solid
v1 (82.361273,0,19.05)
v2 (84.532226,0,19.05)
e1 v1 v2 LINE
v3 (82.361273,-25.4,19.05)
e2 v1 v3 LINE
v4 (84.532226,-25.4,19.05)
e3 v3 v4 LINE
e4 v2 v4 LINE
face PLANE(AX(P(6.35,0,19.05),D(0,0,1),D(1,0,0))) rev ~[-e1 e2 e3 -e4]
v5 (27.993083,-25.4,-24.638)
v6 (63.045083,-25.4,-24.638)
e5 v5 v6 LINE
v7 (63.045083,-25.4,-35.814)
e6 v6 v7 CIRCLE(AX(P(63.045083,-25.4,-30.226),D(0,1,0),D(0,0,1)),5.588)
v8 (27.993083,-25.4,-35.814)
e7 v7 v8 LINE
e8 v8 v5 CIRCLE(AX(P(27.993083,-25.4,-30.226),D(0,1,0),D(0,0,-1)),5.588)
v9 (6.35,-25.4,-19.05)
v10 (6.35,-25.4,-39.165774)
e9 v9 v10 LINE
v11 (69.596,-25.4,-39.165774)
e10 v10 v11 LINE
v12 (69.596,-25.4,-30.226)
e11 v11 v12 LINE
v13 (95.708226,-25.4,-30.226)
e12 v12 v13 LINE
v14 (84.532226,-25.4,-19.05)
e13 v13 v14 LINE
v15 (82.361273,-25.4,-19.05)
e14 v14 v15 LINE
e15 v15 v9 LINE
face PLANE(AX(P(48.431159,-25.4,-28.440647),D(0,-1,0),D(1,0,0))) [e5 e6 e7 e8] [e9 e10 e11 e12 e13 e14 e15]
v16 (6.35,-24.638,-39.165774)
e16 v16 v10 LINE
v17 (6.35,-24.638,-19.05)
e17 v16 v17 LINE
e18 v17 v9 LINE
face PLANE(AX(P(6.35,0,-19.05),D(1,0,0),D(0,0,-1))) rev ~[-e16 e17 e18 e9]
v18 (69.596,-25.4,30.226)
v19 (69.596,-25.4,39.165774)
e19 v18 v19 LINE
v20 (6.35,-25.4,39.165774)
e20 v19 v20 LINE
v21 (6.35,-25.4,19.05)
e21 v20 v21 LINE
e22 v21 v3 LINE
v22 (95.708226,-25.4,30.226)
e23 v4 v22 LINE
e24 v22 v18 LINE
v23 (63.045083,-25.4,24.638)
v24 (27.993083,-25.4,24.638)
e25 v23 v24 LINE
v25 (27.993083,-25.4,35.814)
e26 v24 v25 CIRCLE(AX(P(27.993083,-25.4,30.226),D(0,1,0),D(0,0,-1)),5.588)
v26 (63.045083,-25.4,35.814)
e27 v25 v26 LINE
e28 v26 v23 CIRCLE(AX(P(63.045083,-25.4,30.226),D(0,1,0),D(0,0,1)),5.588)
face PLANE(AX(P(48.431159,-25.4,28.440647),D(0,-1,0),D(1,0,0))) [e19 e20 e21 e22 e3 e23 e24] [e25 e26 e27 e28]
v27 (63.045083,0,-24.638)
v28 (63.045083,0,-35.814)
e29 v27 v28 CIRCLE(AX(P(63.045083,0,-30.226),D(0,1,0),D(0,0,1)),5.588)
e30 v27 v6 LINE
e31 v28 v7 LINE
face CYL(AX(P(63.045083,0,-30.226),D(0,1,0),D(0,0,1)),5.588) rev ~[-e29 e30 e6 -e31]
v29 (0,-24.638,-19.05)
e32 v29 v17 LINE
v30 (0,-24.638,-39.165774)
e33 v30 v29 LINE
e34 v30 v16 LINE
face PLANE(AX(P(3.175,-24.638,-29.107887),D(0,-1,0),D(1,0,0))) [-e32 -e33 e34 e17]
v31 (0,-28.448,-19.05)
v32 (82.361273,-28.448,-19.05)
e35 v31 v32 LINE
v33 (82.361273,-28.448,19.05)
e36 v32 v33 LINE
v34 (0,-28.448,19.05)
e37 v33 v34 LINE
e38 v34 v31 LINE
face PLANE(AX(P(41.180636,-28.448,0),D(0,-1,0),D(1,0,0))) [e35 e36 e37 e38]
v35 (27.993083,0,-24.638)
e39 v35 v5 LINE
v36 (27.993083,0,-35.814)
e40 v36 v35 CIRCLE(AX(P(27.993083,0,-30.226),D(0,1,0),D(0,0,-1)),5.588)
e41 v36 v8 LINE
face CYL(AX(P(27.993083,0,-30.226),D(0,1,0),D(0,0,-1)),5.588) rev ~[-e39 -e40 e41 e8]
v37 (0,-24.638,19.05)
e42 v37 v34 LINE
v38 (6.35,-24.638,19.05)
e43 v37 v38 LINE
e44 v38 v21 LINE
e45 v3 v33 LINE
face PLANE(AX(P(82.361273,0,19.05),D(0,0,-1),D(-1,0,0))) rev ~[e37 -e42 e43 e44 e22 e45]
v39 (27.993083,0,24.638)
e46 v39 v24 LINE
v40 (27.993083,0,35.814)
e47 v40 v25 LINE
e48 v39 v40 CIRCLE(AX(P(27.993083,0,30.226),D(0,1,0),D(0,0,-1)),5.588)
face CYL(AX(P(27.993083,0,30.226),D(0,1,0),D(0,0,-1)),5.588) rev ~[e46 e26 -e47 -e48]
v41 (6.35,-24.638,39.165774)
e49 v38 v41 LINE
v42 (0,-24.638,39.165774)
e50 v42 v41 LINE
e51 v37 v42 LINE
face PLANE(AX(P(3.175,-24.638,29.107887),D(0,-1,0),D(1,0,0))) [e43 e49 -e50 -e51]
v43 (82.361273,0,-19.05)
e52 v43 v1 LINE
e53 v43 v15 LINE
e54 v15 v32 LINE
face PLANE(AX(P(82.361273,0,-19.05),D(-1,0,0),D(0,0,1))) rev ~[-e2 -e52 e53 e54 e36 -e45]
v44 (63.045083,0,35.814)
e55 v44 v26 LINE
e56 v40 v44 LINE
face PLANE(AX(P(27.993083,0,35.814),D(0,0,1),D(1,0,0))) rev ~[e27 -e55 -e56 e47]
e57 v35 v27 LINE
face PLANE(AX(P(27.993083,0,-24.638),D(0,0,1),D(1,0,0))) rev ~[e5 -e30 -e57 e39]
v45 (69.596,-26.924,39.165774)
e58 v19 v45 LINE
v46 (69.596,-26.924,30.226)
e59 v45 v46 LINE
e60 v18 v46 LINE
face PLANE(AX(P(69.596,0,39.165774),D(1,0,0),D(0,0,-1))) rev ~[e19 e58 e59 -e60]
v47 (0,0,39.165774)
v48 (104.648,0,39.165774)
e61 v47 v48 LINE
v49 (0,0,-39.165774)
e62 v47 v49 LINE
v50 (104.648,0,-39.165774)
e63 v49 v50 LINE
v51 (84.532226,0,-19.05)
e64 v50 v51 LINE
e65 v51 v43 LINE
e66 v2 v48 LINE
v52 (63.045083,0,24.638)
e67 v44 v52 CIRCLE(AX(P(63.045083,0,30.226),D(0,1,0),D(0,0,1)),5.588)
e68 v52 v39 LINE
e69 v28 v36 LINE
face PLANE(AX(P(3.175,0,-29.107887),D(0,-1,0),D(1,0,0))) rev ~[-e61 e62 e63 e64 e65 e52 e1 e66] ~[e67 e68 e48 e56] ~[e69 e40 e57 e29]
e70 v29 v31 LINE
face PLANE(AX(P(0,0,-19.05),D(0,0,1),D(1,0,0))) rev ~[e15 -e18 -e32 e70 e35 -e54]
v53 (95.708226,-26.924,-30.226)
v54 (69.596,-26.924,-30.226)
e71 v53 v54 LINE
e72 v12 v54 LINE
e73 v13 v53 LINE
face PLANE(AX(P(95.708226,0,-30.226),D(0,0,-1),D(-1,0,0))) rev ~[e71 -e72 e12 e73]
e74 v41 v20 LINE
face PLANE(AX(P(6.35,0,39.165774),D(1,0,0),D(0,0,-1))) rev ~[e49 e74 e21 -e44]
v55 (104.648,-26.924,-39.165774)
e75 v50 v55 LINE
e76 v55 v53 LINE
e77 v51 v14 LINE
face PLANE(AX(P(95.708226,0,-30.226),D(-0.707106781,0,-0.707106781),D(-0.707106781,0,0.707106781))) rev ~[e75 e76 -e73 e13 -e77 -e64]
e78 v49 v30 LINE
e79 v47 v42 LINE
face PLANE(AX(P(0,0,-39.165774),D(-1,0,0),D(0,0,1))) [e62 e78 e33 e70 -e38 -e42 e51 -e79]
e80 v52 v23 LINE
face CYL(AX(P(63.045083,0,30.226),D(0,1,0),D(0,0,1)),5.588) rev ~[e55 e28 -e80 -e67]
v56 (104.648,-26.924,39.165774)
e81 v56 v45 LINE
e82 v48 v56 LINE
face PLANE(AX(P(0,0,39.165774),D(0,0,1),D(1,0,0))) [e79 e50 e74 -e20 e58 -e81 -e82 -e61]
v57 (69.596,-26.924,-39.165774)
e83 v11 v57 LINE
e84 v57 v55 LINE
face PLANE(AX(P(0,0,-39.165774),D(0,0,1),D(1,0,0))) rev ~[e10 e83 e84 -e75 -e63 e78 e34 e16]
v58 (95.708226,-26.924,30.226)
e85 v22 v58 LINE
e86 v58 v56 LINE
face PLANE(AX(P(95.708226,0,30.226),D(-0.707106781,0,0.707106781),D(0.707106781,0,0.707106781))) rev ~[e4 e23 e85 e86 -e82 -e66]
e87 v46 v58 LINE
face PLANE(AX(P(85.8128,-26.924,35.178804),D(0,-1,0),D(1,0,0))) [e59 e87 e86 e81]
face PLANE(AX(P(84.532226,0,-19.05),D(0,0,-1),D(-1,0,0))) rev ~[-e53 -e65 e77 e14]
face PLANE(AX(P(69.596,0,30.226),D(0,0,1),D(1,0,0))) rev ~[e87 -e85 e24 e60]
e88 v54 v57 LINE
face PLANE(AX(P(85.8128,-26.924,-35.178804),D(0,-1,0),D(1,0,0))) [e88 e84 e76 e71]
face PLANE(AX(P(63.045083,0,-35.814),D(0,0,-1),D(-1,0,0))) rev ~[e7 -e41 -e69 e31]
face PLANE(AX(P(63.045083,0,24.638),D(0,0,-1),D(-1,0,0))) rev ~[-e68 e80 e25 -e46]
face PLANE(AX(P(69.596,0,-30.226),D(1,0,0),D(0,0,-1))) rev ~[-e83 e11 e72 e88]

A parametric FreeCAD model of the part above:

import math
import FreeCAD as App
import Part
import Sketcher

V = App.Vector
Q = App.Units.Quantity


def add_polygon(sketch, points):
    """Adds a closed chain of lines whose ends are joined by coincident constraints."""
    first, n = sketch.GeometryCount, len(points)
    for a, b in zip(points, points[1:] + points[:1]):
        sketch.addGeometry(Part.LineSegment(App.Vector(*a, 0), App.Vector(*b, 0)), False)
    for i in range(n):
        sketch.addConstraint(Sketcher.Constraint("Coincident", first + i, 2, first + (i + 1) % n, 1))

doc = App.newDocument("Part")
params = doc.addObject("Spreadsheet::Sheet", "Params")
for row, (alias, value) in enumerate([
    ("sketch1_height", "1.5 in"),
    ("pad1_length", "1.12 in"),
    ("sketch2_radius", "0.22 in"),
    ("sketch2_width", "2.49 in"),
    ("sketch2_width2", "1.38 in"),
    ("pad2_length", "1 in"),
    ("sketch3_width", "1.38 in"),
    ("pad3_length", "1.06 in"),
    ("sketch4_width", "1.38 in"),
    ("pad4_length", "1.06 in"),
    ("sketch5_width", "0.25 in"),
    ("pad5_length", "0.97 in"),
], start=1):
    params.set(f"A{row}", alias)
    params.set(f"B{row}", "=" + value)
    params.setAlias(f"B{row}", alias)

body = doc.addObject("PartDesign::Body", "Body")

# Sketch on XZ plane
sketch1 = body.newObject("Sketcher::SketchObject", "Sketch")
sketch1.AttachmentSupport = (doc.getObject("XZ_Plane"), [""])
sketch1.MapMode = "FlatFace"
add_polygon(sketch1, [(0, -19), (82, -19), (82, 19), (0, 19)])  # lines 0-3
sketch1.addConstraint(Sketcher.Constraint("Horizontal", 0))
sketch1.addConstraint(Sketcher.Constraint("Vertical", 1))
sketch1.addConstraint(Sketcher.Constraint("Horizontal", 2))
sketch1.addConstraint(Sketcher.Constraint("Vertical", 3))
sketch1.addConstraint(Sketcher.Constraint("Symmetric", 2, 2, 3, 2, -1, 1))
sketch1.addConstraint(Sketcher.Constraint("DistanceY", 1, 1, 1, 2, Q("1.5 in")))
sketch1.addConstraint(Sketcher.Constraint("DistanceX", 0, 1, 0, 2, 82.361273))
sketch1.setExpression("Constraints[9]", "Params.sketch1_height")
pad1 = body.newObject("PartDesign::Pad", "Pad")
pad1.Profile = sketch1
pad1.setExpression("Length", "Params.pad1_length")

# Sketch on XZ plane
sketch2 = body.newObject("Sketcher::SketchObject", "Sketch001")
sketch2.AttachmentSupport = (doc.getObject("XZ_Plane"), [""])
sketch2.MapMode = "FlatFace"
add_polygon(sketch2, [(6, 19), (85, 19), (96, 30), (70, 30), (70, 39), (6, 39)])  # lines 0-5
sketch2.addGeometry(Part.ArcOfCircle(Part.Circle(V(28, 30, 0), V(0, 0, 1), 6), math.radians(90), math.radians(270)), False)  # 6
sketch2.addGeometry(Part.LineSegment(V(28, 36, 0), V(63, 36, 0)), False)  # 7
sketch2.addGeometry(Part.ArcOfCircle(Part.Circle(V(63, 30, 0), V(0, 0, 1), 6), math.radians(-90), math.radians(90)), False)  # 8
sketch2.addGeometry(Part.LineSegment(V(63, 25, 0), V(28, 25, 0)), False)  # 9
add_polygon(sketch2, [(6, -19), (6, -39), (70, -39), (70, -30), (96, -30), (85, -19)])  # lines 10-15
sketch2.addGeometry(Part.LineSegment(V(63, -36, 0), V(28, -36, 0)), False)  # 16
sketch2.addGeometry(Part.ArcOfCircle(Part.Circle(V(28, -30, 0), V(0, 0, 1), 6), math.radians(90), math.radians(270)), False)  # 17
sketch2.addGeometry(Part.LineSegment(V(28, -25, 0), V(63, -25, 0)), False)  # 18
sketch2.addGeometry(Part.ArcOfCircle(Part.Circle(V(63, -30, 0), V(0, 0, 1), 6), math.radians(-90), math.radians(90)), False)  # 19
sketch2.addConstraint(Sketcher.Constraint("Tangent", 6, 1, 7, 1))
sketch2.addConstraint(Sketcher.Constraint("Tangent", 7, 2, 8, 2))
sketch2.addConstraint(Sketcher.Constraint("Tangent", 8, 1, 9, 1))
sketch2.addConstraint(Sketcher.Constraint("Tangent", 9, 2, 6, 2))
sketch2.addConstraint(Sketcher.Constraint("Tangent", 16, 2, 17, 2))
sketch2.addConstraint(Sketcher.Constraint("Tangent", 17, 1, 18, 1))
sketch2.addConstraint(Sketcher.Constraint("Tangent", 18, 2, 19, 2))
sketch2.addConstraint(Sketcher.Constraint("Tangent", 19, 1, 16, 1))
sketch2.addConstraint(Sketcher.Constraint("Horizontal", 0))
sketch2.addConstraint(Sketcher.Constraint("Horizontal", 2))
sketch2.addConstraint(Sketcher.Constraint("Vertical", 3))
sketch2.addConstraint(Sketcher.Constraint("Horizontal", 4))
sketch2.addConstraint(Sketcher.Constraint("Vertical", 5))
sketch2.addConstraint(Sketcher.Constraint("Horizontal", 7))
sketch2.addConstraint(Sketcher.Constraint("Horizontal", 9))
sketch2.addConstraint(Sketcher.Constraint("Vertical", 10))
sketch2.addConstraint(Sketcher.Constraint("Horizontal", 11))
sketch2.addConstraint(Sketcher.Constraint("Vertical", 12))
sketch2.addConstraint(Sketcher.Constraint("Horizontal", 13))
sketch2.addConstraint(Sketcher.Constraint("Horizontal", 15))
sketch2.addConstraint(Sketcher.Constraint("Horizontal", 16))
sketch2.addConstraint(Sketcher.Constraint("Horizontal", 18))
sketch2.addConstraint(Sketcher.Constraint("Equal", 8, 17))
sketch2.addConstraint(Sketcher.Constraint("Symmetric", 6, 3, 17, 3, -1))
sketch2.addConstraint(Sketcher.Constraint("Symmetric", 4, 2, 10, 2, -1))
sketch2.addConstraint(Sketcher.Constraint("Symmetric", 2, 2, 12, 2, -1))
sketch2.addConstraint(Sketcher.Constraint("Symmetric", 0, 2, 14, 2, -1))
sketch2.addConstraint(Sketcher.Constraint("Perpendicular", 1, 14))
sketch2.addConstraint(Sketcher.Constraint("Horizontal", 8, 3, 1, 2))
sketch2.addConstraint(Sketcher.Constraint("Vertical", 8, 3, 19, 3))
sketch2.addConstraint(Sketcher.Constraint("Vertical", 1, 2, 13, 2))
sketch2.addConstraint(Sketcher.Constraint("Radius", 6, Q("0.22 in")))
sketch2.addConstraint(Sketcher.Constraint("DistanceX", 4, 2, 4, 1, Q("2.49 in")))
sketch2.addConstraint(Sketcher.Constraint("DistanceX", 7, 1, 7, 2, Q("1.38 in")))
sketch2.addConstraint(Sketcher.Constraint("DistanceY", 14, 2, 0, 2, Q("1.5 in")))
sketch2.addConstraint(Sketcher.Constraint("DistanceY", -1, 1, 6, 3, Q("1.19 in")))
sketch2.addConstraint(Sketcher.Constraint("DistanceX", -1, 1, 2, 2, Q("2.74 in")))
sketch2.addConstraint(Sketcher.Constraint("DistanceX", 0, 1, 0, 2, 78.182226))
sketch2.addConstraint(Sketcher.Constraint("DistanceY", 3, 1, 3, 2, 8.939774))
sketch2.addConstraint(Sketcher.Constraint("DistanceX", -1, 1, 6, 3, 27.993083))
sketch2.setExpression("Constraints[43]", "Params.sketch2_radius")
sketch2.setExpression("Constraints[44]", "Params.sketch2_width")
sketch2.setExpression("Constraints[45]", "Params.sketch2_width2")
pad2 = body.newObject("PartDesign::Pad", "Pad001")
pad2.Profile = sketch2
pad2.setExpression("Length", "Params.pad2_length")

# Sketch on XZ plane
sketch3 = body.newObject("Sketcher::SketchObject", "Sketch002")
sketch3.AttachmentSupport = (doc.getObject("XZ_Plane"), [""])
sketch3.MapMode = "FlatFace"
add_polygon(sketch3, [(70, -30), (70, -39), (105, -39), (96, -30)])  # lines 0-3
sketch3.addConstraint(Sketcher.Constraint("Vertical", 0))
sketch3.addConstraint(Sketcher.Constraint("Horizontal", 1))
sketch3.addConstraint(Sketcher.Constraint("Horizontal", 3))
sketch3.addConstraint(Sketcher.Constraint("Angle", 2, Q("135 deg")))
sketch3.addConstraint(Sketcher.Constraint("DistanceX", 1, 1, 1, 2, Q("1.38 in")))
sketch3.addConstraint(Sketcher.Constraint("DistanceX", -1, 1, 0, 2, Q("2.74 in")))
sketch3.addConstraint(Sketcher.Constraint("DistanceY", 2, 2, -1, 1, Q("1.19 in")))
sketch3.addConstraint(Sketcher.Constraint("Distance", 2, 12.64275))
sketch3.setExpression("Constraints[8]", "Params.sketch3_width")
pad3 = body.newObject("PartDesign::Pad", "Pad002")
pad3.Profile = sketch3
pad3.setExpression("Length", "Params.pad3_length")

# Sketch on XZ plane
sketch4 = body.newObject("Sketcher::SketchObject", "Sketch003")
sketch4.AttachmentSupport = (doc.getObject("XZ_Plane"), [""])
sketch4.MapMode = "FlatFace"
add_polygon(sketch4, [(70, 30), (96, 30), (105, 39), (70, 39)])  # lines 0-3
sketch4.addConstraint(Sketcher.Constraint("Horizontal", 0))
sketch4.addConstraint(Sketcher.Constraint("Horizontal", 2))
sketch4.addConstraint(Sketcher.Constraint("Vertical", 3))
sketch4.addConstraint(Sketcher.Constraint("Angle", 1, Q("45 deg")))
sketch4.addConstraint(Sketcher.Constraint("DistanceX", 2, 2, 2, 1, Q("1.38 in")))
sketch4.addConstraint(Sketcher.Constraint("DistanceY", -1, 1, 0, 2, Q("1.19 in")))
sketch4.addConstraint(Sketcher.Constraint("DistanceX", -1, 1, 1, 2, Q("4.12 in")))
sketch4.addConstraint(Sketcher.Constraint("Distance", 1, 12.64275))
sketch4.setExpression("Constraints[8]", "Params.sketch4_width")
pad4 = body.newObject("PartDesign::Pad", "Pad003")
pad4.Profile = sketch4
pad4.setExpression("Length", "Params.pad4_length")

# Sketch on XZ plane
sketch5 = body.newObject("Sketcher::SketchObject", "Sketch004")
sketch5.AttachmentSupport = (doc.getObject("XZ_Plane"), [""])
sketch5.MapMode = "FlatFace"
add_polygon(sketch5, [(0, -19), (0, -39), (6, -39), (6, -19)])  # lines 0-3
add_polygon(sketch5, [(0, 39), (0, 19), (6, 19), (6, 39)])  # lines 4-7
sketch5.addConstraint(Sketcher.Constraint("Vertical", 0))
sketch5.addConstraint(Sketcher.Constraint("Horizontal", 1))
sketch5.addConstraint(Sketcher.Constraint("Vertical", 2))
sketch5.addConstraint(Sketcher.Constraint("Horizontal", 3))
sketch5.addConstraint(Sketcher.Constraint("Vertical", 4))
sketch5.addConstraint(Sketcher.Constraint("Horizontal", 5))
sketch5.addConstraint(Sketcher.Constraint("Vertical", 6))
sketch5.addConstraint(Sketcher.Constraint("Horizontal", 7))
sketch5.addConstraint(Sketcher.Constraint("Symmetric", 3, 2, 4, 2, -1, 1))
sketch5.addConstraint(Sketcher.Constraint("Symmetric", 1, 2, 6, 2, -1))
sketch5.addConstraint(Sketcher.Constraint("PointOnObject", 0, 2, -2))
sketch5.addConstraint(Sketcher.Constraint("DistanceX", 1, 1, 1, 2, Q("0.25 in")))
sketch5.addConstraint(Sketcher.Constraint("DistanceY", 3, 2, 4, 2, Q("1.5 in")))
sketch5.addConstraint(Sketcher.Constraint("DistanceY", 0, 2, 0, 1, 20.115774))
sketch5.setExpression("Constraints[19]", "Params.sketch5_width")
pad5 = body.newObject("PartDesign::Pad", "Pad004")
pad5.Profile = sketch5
pad5.setExpression("Length", "Params.pad5_length")

doc.recompute()
